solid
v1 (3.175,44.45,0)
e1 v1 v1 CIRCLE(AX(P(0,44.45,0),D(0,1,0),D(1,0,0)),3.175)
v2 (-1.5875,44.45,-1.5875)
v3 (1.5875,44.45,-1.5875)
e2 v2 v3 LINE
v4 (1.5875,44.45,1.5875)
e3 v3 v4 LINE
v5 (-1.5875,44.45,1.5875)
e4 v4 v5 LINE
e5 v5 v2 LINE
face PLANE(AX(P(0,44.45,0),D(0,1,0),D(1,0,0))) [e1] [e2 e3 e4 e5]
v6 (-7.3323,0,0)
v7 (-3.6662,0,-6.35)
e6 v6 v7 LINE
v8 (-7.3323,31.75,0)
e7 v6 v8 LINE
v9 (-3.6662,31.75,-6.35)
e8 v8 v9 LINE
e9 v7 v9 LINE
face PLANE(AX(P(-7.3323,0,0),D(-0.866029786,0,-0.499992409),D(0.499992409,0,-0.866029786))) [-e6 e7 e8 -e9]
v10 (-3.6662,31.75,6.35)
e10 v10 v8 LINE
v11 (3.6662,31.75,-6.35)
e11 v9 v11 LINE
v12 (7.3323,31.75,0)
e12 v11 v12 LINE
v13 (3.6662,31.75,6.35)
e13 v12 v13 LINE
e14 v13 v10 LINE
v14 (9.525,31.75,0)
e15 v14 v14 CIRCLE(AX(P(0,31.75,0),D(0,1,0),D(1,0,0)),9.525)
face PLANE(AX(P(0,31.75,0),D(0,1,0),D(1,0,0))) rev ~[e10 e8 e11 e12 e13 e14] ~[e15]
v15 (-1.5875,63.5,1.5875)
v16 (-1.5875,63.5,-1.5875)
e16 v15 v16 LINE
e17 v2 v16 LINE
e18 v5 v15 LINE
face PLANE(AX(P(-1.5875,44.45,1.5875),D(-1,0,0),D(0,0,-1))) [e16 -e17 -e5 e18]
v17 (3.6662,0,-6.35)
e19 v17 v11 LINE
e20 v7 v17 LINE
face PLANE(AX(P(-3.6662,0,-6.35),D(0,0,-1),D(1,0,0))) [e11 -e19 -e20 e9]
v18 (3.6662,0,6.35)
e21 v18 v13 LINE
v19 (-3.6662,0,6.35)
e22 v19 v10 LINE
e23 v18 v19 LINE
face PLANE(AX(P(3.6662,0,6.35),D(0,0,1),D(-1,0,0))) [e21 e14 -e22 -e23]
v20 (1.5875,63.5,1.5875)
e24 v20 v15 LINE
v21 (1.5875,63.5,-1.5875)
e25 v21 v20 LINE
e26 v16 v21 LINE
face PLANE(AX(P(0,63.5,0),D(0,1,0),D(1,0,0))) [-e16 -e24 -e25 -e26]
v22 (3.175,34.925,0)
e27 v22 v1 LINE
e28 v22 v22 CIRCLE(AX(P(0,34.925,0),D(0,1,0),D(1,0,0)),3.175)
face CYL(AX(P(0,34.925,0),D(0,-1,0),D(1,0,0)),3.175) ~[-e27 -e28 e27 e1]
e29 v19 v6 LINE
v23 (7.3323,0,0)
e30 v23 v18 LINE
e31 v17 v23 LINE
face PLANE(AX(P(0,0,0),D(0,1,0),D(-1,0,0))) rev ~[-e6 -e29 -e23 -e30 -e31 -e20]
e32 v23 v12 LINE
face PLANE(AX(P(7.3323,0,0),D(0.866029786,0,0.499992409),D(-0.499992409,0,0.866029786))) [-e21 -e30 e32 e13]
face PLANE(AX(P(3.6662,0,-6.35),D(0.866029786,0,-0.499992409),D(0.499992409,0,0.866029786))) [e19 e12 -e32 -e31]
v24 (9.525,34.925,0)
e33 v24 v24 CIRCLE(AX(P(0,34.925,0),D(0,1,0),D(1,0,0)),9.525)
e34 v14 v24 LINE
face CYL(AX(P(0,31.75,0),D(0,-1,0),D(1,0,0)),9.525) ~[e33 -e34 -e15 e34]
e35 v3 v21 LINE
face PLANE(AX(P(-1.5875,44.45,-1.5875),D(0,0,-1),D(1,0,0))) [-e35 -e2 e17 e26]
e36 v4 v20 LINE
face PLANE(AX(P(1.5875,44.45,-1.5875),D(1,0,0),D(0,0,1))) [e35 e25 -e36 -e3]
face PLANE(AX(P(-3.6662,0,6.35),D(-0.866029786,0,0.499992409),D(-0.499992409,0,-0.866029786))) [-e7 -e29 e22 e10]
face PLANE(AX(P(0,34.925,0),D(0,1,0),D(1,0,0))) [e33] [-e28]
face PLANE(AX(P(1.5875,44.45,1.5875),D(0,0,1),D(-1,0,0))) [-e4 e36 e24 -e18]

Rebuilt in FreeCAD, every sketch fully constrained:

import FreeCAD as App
import Part
import Sketcher

V = App.Vector
Q = App.Units.Quantity


def add_polygon(sketch, points):
    """Adds a closed chain of lines whose ends are joined by coincident constraints."""
    first, n = sketch.GeometryCount, len(points)
    for a, b in zip(points, points[1:] + points[:1]):
        sketch.addGeometry(Part.LineSegment(App.Vector(*a, 0), App.Vector(*b, 0)), False)
    for i in range(n):
        sketch.addConstraint(Sketcher.Constraint("Coincident", first + i, 2, first + (i + 1) % n, 1))

doc = App.newDocument("Part")
body = doc.addObject("PartDesign::Body", "Body")

sketch1 = body.newObject("Sketcher::SketchObject", "Sketch")
sketch1.AttachmentSupport = (doc.getObject("XZ_Plane"), [""])
sketch1.MapMode = "FlatFace"
add_polygon(sketch1, [(-7, 0), (-4, 6), (4, 6), (7, 0), (4, -6), (-4, -6)])
sketch1.addConstraint(Sketcher.Constraint("Horizontal", 1))
sketch1.addConstraint(Sketcher.Constraint("Horizontal", 4))
sketch1.addConstraint(Sketcher.Constraint("Symmetric", 0, 2, 3, 2, -1, 1))
sketch1.addConstraint(Sketcher.Constraint("Symmetric", 2, 2, 5, 2, -1, 1))
sketch1.addConstraint(Sketcher.Constraint("PointOnObject", 2, 2, -1))
sketch1.addConstraint(Sketcher.Constraint("Parallel", 2, 5))
sketch1.addConstraint(Sketcher.Constraint("Vertical", 1, 2, 3, 2))
sketch1.addConstraint(Sketcher.Constraint("DistanceY", 3, 2, 1, 2, Q("0.5 in")))
sketch1.addConstraint(Sketcher.Constraint("Angle", 0, Q("60.0005 deg")))
sketch1.addConstraint(Sketcher.Constraint("DistanceX", 0, 2, 2, 2, Q("0.433 in")))
pad1 = body.newObject("PartDesign::Pad", "Pad")
pad1.Profile = sketch1
pad1.Length = Q("1.25 in")
pad1.Reversed = True

sketch2 = body.newObject("Sketcher::SketchObject", "Sketch001")
sketch2.AttachmentSupport = (doc.getObject("XZ_Plane"), [""])
sketch2.MapMode = "FlatFace"
sketch2.AttachmentOffset = App.Placement(V(0, 0, -1.25 * 25.4), App.Rotation())
sketch2.addGeometry(Part.Circle(V(0, 0, 0), V(0, 0, 1), 10), False)
sketch2.addConstraint(Sketcher.Constraint("Coincident", 0, 3, -1, 1))
sketch2.addConstraint(Sketcher.Constraint("Diameter", 0, Q("0.75 in")))
pad2 = body.newObject("PartDesign::Pad", "Pad001")
pad2.Profile = sketch2
pad2.Length = Q("0.125 in")
pad2.Reversed = True

sketch3 = body.newObject("Sketcher::SketchObject", "Sketch002")
sketch3.AttachmentSupport = (doc.getObject("XZ_Plane"), [""])
sketch3.MapMode = "FlatFace"
sketch3.AttachmentOffset = App.Placement(V(0, 0, -1.375 * 25.4), App.Rotation())
sketch3.addGeometry(Part.Circle(V(0, 0, 0), V(0, 0, 1), 3.2), False)
sketch3.addConstraint(Sketcher.Constraint("Coincident", 0, 3, -1, 1))
sketch3.addConstraint(Sketcher.Constraint("Diameter", 0, Q("0.25 in")))
pad3 = body.newObject("PartDesign::Pad", "Pad002")
pad3.Profile = sketch3
pad3.Length = Q("0.375 in")
pad3.Reversed = True

sketch4 = body.newObject("Sketcher::SketchObject", "Sketch003")
sketch4.AttachmentSupport = (doc.getObject("XZ_Plane"), [""])
sketch4.MapMode = "FlatFace"
sketch4.AttachmentOffset = App.Placement(V(0, 0, -1.75 * 25.4), App.Rotation())
add_polygon(sketch4, [(-1.6, 1.6), (1.6, 1.6), (1.6, -1.6), (-1.6, -1.6)])
sketch4.addConstraint(Sketcher.Constraint("Horizontal", 0))
sketch4.addConstraint(Sketcher.Constraint("Vertical", 1))
sketch4.addConstraint(Sketcher.Constraint("Horizontal", 2))
sketch4.addConstraint(Sketcher.Constraint("Vertical", 3))
sketch4.addConstraint(Sketcher.Constraint("Symmetric", 0, 2, 2, 2, -1, 1))
sketch4.addConstraint(Sketcher.Constraint("Equal", 2, 1))
sketch4.addConstraint(Sketcher.Constraint("DistanceX", 0, 1, 0, 2, Q("0.125 in")))
pad4 = body.newObject("PartDesign::Pad", "Pad003")
pad4.Profile = sketch4
pad4.Length = Q("0.75 in")
pad4.Reversed = True

doc.recompute()
